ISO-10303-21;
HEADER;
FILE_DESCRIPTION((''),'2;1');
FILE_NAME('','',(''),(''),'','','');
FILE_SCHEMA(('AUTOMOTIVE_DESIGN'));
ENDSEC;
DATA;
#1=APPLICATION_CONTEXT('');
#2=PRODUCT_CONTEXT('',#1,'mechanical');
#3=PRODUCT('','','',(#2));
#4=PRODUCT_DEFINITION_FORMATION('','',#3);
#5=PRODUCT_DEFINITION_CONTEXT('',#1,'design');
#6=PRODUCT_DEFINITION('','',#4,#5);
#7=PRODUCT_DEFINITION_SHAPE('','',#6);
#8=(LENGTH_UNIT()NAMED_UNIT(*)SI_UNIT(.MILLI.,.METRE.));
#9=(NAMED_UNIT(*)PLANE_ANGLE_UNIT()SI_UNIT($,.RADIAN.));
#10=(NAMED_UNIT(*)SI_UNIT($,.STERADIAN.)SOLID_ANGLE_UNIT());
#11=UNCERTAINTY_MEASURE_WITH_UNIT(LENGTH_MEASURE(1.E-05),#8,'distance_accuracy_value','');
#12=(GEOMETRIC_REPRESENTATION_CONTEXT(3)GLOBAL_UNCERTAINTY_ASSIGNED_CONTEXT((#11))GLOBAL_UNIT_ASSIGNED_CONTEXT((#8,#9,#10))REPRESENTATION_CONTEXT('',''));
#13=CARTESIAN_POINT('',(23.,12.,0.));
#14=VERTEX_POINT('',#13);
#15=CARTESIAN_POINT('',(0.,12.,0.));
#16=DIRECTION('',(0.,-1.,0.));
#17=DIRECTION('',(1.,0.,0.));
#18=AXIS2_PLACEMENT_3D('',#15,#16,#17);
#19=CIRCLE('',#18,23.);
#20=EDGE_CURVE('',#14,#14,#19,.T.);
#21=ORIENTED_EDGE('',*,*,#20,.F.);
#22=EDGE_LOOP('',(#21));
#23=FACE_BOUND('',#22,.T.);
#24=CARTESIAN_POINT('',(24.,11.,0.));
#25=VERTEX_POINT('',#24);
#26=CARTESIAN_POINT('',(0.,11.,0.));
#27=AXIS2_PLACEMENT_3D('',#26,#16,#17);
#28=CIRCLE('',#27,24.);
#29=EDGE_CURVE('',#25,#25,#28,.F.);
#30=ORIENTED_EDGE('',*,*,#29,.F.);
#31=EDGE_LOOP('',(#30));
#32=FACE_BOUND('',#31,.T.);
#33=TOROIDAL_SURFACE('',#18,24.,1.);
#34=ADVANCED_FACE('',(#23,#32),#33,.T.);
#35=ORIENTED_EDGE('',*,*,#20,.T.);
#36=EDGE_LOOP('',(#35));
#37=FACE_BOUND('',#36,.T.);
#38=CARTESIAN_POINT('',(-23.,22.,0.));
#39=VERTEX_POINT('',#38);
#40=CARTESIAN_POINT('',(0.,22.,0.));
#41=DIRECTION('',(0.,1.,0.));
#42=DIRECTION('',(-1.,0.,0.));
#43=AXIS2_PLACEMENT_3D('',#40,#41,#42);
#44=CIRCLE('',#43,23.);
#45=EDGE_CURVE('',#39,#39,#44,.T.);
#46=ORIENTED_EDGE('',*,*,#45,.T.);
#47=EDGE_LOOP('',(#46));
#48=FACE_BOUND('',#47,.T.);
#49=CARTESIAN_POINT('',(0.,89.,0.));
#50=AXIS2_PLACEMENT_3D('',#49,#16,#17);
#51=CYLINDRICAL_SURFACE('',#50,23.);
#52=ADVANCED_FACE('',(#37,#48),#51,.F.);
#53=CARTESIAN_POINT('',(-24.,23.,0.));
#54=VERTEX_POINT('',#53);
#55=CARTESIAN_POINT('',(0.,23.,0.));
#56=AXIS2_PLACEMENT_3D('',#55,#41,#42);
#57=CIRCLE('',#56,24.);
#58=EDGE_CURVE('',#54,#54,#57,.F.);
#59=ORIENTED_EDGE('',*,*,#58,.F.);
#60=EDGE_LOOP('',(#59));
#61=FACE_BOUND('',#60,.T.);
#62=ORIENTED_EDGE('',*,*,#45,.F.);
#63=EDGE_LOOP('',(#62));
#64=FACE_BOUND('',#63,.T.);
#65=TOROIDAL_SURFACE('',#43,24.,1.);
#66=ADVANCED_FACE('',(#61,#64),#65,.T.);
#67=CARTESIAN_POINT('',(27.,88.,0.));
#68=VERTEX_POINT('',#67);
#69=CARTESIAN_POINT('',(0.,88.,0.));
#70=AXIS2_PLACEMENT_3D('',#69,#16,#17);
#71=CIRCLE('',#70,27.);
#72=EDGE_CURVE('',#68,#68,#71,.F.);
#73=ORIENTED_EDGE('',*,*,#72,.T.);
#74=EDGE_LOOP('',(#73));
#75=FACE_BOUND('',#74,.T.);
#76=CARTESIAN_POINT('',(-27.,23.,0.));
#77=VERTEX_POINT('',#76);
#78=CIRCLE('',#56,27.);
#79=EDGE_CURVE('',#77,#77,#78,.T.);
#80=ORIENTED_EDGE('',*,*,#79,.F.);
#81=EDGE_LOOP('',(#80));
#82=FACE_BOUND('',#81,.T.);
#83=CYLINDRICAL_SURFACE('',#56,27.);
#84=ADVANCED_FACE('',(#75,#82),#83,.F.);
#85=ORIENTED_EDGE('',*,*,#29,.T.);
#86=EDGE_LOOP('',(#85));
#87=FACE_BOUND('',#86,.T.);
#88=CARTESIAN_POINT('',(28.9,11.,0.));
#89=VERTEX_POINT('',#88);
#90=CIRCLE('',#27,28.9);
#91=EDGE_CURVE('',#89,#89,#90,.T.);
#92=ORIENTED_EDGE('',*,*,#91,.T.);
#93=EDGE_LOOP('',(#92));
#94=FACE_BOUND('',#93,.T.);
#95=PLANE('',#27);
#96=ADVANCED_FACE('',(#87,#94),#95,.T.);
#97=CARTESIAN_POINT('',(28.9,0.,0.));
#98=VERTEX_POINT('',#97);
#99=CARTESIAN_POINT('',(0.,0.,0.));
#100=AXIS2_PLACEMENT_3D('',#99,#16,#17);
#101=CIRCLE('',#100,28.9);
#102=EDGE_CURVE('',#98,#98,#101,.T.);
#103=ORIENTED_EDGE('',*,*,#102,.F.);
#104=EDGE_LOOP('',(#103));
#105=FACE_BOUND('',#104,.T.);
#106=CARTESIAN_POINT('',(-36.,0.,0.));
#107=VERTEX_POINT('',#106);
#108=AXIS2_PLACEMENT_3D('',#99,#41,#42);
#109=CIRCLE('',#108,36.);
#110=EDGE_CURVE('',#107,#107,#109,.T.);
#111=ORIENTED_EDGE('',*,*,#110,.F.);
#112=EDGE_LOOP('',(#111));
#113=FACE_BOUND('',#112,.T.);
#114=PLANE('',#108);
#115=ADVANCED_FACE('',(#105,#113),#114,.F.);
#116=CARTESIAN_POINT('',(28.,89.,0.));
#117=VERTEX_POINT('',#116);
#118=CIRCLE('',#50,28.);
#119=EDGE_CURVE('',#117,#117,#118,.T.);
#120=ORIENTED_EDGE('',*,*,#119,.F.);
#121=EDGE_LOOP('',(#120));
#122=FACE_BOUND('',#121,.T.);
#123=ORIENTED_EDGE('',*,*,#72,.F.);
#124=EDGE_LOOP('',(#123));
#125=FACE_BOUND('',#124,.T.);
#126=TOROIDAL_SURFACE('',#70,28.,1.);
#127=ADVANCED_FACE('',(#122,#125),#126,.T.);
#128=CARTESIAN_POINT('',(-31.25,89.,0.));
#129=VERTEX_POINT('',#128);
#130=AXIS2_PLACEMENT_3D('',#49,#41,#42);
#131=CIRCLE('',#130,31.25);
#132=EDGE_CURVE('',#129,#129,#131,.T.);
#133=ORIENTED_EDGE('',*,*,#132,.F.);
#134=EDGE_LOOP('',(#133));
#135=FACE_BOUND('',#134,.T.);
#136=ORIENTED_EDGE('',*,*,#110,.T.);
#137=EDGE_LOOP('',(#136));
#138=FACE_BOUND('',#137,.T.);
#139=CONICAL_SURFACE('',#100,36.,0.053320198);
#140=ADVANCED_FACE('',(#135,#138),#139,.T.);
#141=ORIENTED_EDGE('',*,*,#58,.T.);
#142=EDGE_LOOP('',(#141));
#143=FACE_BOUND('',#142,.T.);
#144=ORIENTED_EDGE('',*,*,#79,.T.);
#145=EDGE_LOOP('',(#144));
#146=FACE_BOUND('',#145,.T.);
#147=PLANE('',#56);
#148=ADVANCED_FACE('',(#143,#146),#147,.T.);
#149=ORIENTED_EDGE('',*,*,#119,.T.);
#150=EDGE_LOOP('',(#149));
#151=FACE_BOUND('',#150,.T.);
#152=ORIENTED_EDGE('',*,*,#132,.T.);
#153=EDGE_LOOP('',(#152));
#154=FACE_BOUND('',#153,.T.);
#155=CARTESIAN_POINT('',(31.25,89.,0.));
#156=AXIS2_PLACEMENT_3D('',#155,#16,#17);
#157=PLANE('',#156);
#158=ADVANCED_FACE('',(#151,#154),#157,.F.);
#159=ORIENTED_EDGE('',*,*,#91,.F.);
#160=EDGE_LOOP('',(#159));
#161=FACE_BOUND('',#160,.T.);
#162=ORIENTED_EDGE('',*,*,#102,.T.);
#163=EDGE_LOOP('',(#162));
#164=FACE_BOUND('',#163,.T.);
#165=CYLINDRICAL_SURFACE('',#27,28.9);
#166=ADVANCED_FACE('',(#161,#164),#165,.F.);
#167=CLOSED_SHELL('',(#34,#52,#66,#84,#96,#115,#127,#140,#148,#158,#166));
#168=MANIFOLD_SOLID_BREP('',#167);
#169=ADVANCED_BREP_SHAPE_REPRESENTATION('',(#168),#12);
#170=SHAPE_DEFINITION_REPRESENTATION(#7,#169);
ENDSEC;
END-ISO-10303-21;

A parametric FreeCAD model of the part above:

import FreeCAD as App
import Part
import Sketcher
Q = App.Units.Quantity


def edges_at(feature, points):
    """Names of the edges that pass closest to the given points."""
    edges = feature.Shape.Edges
    near = lambda p: min(range(len(edges)), key=lambda i: edges[i].distToShape(Part.Vertex(*p))[0])
    return sorted({f"Edge{near(p) + 1}" for p in points})

doc = App.newDocument("Part")
params = doc.addObject("Spreadsheet::Sheet", "Params")
for row, (alias, value) in enumerate([
    ("sketch1_width", "36 mm"),
    ("sketch1_height", "89 mm"),
    ("sketch1_width2", "31.25 mm"),
    ("revolution_angle", "360 deg"),
    ("sketch2_diameter", "54 mm"),
    ("pocket1_length", "66 mm"),
    ("sketch3_diameter", "57.8 mm"),
    ("pocket2_length", "11 mm"),
    ("sketch4_diameter", "46 mm"),
    ("fillet_radius", "1 mm"),
    ("fillet2_radius", "1 mm"),
], start=1):
    params.set(f"A{row}", alias)
    params.set(f"B{row}", "=" + value)
    params.setAlias(f"B{row}", alias)

body = doc.addObject("PartDesign::Body", "Body")

sketch1 = doc.addObject("Sketcher::SketchObject", "Sketch")
body.addObject(sketch1)
sketch1.AttachmentSupport = (doc.XY_Plane, [""])
sketch1.MapMode = "FlatFace"
sketch1.addGeometry([
    Part.LineSegment(App.Vector(0, 0, 0), App.Vector(36, 0, 0)),
    Part.LineSegment(App.Vector(36, 0, 0), App.Vector(31, 89, 0)),
    Part.LineSegment(App.Vector(31, 89, 0), App.Vector(0, 89, 0)),
    Part.LineSegment(App.Vector(0, 89, 0), App.Vector(0, 0, 0)),
], False)
sketch1.addConstraint([
    Sketcher.Constraint("Coincident", 0, 2, 1, 1),
    Sketcher.Constraint("Coincident", 1, 2, 2, 1),
    Sketcher.Constraint("Coincident", 2, 2, 3, 1),
    Sketcher.Constraint("Coincident", 3, 2, 0, 1),
    Sketcher.Constraint("Horizontal", 0),
    Sketcher.Constraint("Horizontal", 2),
    Sketcher.Constraint("Vertical", 3),
    Sketcher.Constraint("Coincident", 3, 2, -1, 1),
    Sketcher.Constraint("DistanceX", 0, 1, 0, 2, Q("36 mm")),
    Sketcher.Constraint("DistanceY", 3, 2, 3, 1, Q("89 mm")),
    Sketcher.Constraint("DistanceX", 2, 2, 2, 1, Q("31.25 mm")),
])
sketch1.setExpression("Constraints[8]", "Params.sketch1_width")
sketch1.setExpression("Constraints[9]", "Params.sketch1_height")
sketch1.setExpression("Constraints[10]", "Params.sketch1_width2")
revolution = doc.addObject("PartDesign::Revolution", "Revolution")
body.addObject(revolution)
revolution.Profile = sketch1
revolution.ReferenceAxis = (sketch1, ["V_Axis"])
revolution.setExpression("Angle", "Params.revolution_angle")

sketch2 = doc.addObject("Sketcher::SketchObject", "Sketch001")
body.addObject(sketch2)
sketch2.AttachmentSupport = (doc.XZ_Plane, [""])
sketch2.MapMode = "FlatFace"
sketch2.AttachmentOffset = App.Placement(App.Vector(0, 0, -89), App.Rotation())
sketch2.addGeometry(Part.Circle(App.Vector(0, 0, 0), App.Vector(0, 0, 1), 27), False)
sketch2.addConstraint([
    Sketcher.Constraint("Coincident", 0, 3, -1, 1),
    Sketcher.Constraint("Diameter", 0, Q("54 mm")),
])
sketch2.setExpression("Constraints[1]", "Params.sketch2_diameter")
pocket1 = doc.addObject("PartDesign::Pocket", "Pocket")
body.addObject(pocket1)
pocket1.Profile = sketch2
pocket1.setExpression("Length", "Params.pocket1_length")
pocket1.Reversed = True

sketch3 = doc.addObject("Sketcher::SketchObject", "Sketch002")
body.addObject(sketch3)
sketch3.AttachmentSupport = (doc.XZ_Plane, [""])
sketch3.MapMode = "FlatFace"
sketch3.addGeometry(Part.Circle(App.Vector(0, 0, 0), App.Vector(0, 0, 1), 29), False)
sketch3.addConstraint([
    Sketcher.Constraint("Coincident", 0, 3, -1, 1),
    Sketcher.Constraint("Diameter", 0, Q("57.8 mm")),
])
sketch3.setExpression("Constraints[1]", "Params.sketch3_diameter")
pocket2 = doc.addObject("PartDesign::Pocket", "Pocket001")
body.addObject(pocket2)
pocket2.Profile = sketch3
pocket2.setExpression("Length", "Params.pocket2_length")

sketch4 = doc.addObject("Sketcher::SketchObject", "Sketch003")
body.addObject(sketch4)
sketch4.AttachmentSupport = (doc.XZ_Plane, [""])
sketch4.MapMode = "FlatFace"
sketch4.AttachmentOffset = App.Placement(App.Vector(0, 0, -11), App.Rotation())
sketch4.addGeometry(Part.Circle(App.Vector(0, 0, 0), App.Vector(0, 0, 1), 23), False)
sketch4.addConstraint([
    Sketcher.Constraint("Coincident", 0, 3, -1, 1),
    Sketcher.Constraint("Diameter", 0, Q("46 mm")),
])
sketch4.setExpression("Constraints[1]", "Params.sketch4_diameter")
pocket3 = doc.addObject("PartDesign::Pocket", "Pocket002")
body.addObject(pocket3)
pocket3.Profile = sketch4
pocket3.Type = "ThroughAll"
doc.recompute()

fillet = doc.addObject("PartDesign::Fillet", "Fillet")
body.addObject(fillet)
fillet.Base = (pocket3, edges_at(pocket3, [(27, 89, 0)]))
fillet.setExpression("Radius", "Params.fillet_radius")
doc.recompute()

fillet2 = doc.addObject("PartDesign::Fillet", "Fillet001")
body.addObject(fillet2)
fillet2.Base = (fillet, edges_at(fillet, [(-23, 23, 0), (-23, 11, 0)]))
fillet2.setExpression("Radius", "Params.fillet2_radius")

doc.recompute()
